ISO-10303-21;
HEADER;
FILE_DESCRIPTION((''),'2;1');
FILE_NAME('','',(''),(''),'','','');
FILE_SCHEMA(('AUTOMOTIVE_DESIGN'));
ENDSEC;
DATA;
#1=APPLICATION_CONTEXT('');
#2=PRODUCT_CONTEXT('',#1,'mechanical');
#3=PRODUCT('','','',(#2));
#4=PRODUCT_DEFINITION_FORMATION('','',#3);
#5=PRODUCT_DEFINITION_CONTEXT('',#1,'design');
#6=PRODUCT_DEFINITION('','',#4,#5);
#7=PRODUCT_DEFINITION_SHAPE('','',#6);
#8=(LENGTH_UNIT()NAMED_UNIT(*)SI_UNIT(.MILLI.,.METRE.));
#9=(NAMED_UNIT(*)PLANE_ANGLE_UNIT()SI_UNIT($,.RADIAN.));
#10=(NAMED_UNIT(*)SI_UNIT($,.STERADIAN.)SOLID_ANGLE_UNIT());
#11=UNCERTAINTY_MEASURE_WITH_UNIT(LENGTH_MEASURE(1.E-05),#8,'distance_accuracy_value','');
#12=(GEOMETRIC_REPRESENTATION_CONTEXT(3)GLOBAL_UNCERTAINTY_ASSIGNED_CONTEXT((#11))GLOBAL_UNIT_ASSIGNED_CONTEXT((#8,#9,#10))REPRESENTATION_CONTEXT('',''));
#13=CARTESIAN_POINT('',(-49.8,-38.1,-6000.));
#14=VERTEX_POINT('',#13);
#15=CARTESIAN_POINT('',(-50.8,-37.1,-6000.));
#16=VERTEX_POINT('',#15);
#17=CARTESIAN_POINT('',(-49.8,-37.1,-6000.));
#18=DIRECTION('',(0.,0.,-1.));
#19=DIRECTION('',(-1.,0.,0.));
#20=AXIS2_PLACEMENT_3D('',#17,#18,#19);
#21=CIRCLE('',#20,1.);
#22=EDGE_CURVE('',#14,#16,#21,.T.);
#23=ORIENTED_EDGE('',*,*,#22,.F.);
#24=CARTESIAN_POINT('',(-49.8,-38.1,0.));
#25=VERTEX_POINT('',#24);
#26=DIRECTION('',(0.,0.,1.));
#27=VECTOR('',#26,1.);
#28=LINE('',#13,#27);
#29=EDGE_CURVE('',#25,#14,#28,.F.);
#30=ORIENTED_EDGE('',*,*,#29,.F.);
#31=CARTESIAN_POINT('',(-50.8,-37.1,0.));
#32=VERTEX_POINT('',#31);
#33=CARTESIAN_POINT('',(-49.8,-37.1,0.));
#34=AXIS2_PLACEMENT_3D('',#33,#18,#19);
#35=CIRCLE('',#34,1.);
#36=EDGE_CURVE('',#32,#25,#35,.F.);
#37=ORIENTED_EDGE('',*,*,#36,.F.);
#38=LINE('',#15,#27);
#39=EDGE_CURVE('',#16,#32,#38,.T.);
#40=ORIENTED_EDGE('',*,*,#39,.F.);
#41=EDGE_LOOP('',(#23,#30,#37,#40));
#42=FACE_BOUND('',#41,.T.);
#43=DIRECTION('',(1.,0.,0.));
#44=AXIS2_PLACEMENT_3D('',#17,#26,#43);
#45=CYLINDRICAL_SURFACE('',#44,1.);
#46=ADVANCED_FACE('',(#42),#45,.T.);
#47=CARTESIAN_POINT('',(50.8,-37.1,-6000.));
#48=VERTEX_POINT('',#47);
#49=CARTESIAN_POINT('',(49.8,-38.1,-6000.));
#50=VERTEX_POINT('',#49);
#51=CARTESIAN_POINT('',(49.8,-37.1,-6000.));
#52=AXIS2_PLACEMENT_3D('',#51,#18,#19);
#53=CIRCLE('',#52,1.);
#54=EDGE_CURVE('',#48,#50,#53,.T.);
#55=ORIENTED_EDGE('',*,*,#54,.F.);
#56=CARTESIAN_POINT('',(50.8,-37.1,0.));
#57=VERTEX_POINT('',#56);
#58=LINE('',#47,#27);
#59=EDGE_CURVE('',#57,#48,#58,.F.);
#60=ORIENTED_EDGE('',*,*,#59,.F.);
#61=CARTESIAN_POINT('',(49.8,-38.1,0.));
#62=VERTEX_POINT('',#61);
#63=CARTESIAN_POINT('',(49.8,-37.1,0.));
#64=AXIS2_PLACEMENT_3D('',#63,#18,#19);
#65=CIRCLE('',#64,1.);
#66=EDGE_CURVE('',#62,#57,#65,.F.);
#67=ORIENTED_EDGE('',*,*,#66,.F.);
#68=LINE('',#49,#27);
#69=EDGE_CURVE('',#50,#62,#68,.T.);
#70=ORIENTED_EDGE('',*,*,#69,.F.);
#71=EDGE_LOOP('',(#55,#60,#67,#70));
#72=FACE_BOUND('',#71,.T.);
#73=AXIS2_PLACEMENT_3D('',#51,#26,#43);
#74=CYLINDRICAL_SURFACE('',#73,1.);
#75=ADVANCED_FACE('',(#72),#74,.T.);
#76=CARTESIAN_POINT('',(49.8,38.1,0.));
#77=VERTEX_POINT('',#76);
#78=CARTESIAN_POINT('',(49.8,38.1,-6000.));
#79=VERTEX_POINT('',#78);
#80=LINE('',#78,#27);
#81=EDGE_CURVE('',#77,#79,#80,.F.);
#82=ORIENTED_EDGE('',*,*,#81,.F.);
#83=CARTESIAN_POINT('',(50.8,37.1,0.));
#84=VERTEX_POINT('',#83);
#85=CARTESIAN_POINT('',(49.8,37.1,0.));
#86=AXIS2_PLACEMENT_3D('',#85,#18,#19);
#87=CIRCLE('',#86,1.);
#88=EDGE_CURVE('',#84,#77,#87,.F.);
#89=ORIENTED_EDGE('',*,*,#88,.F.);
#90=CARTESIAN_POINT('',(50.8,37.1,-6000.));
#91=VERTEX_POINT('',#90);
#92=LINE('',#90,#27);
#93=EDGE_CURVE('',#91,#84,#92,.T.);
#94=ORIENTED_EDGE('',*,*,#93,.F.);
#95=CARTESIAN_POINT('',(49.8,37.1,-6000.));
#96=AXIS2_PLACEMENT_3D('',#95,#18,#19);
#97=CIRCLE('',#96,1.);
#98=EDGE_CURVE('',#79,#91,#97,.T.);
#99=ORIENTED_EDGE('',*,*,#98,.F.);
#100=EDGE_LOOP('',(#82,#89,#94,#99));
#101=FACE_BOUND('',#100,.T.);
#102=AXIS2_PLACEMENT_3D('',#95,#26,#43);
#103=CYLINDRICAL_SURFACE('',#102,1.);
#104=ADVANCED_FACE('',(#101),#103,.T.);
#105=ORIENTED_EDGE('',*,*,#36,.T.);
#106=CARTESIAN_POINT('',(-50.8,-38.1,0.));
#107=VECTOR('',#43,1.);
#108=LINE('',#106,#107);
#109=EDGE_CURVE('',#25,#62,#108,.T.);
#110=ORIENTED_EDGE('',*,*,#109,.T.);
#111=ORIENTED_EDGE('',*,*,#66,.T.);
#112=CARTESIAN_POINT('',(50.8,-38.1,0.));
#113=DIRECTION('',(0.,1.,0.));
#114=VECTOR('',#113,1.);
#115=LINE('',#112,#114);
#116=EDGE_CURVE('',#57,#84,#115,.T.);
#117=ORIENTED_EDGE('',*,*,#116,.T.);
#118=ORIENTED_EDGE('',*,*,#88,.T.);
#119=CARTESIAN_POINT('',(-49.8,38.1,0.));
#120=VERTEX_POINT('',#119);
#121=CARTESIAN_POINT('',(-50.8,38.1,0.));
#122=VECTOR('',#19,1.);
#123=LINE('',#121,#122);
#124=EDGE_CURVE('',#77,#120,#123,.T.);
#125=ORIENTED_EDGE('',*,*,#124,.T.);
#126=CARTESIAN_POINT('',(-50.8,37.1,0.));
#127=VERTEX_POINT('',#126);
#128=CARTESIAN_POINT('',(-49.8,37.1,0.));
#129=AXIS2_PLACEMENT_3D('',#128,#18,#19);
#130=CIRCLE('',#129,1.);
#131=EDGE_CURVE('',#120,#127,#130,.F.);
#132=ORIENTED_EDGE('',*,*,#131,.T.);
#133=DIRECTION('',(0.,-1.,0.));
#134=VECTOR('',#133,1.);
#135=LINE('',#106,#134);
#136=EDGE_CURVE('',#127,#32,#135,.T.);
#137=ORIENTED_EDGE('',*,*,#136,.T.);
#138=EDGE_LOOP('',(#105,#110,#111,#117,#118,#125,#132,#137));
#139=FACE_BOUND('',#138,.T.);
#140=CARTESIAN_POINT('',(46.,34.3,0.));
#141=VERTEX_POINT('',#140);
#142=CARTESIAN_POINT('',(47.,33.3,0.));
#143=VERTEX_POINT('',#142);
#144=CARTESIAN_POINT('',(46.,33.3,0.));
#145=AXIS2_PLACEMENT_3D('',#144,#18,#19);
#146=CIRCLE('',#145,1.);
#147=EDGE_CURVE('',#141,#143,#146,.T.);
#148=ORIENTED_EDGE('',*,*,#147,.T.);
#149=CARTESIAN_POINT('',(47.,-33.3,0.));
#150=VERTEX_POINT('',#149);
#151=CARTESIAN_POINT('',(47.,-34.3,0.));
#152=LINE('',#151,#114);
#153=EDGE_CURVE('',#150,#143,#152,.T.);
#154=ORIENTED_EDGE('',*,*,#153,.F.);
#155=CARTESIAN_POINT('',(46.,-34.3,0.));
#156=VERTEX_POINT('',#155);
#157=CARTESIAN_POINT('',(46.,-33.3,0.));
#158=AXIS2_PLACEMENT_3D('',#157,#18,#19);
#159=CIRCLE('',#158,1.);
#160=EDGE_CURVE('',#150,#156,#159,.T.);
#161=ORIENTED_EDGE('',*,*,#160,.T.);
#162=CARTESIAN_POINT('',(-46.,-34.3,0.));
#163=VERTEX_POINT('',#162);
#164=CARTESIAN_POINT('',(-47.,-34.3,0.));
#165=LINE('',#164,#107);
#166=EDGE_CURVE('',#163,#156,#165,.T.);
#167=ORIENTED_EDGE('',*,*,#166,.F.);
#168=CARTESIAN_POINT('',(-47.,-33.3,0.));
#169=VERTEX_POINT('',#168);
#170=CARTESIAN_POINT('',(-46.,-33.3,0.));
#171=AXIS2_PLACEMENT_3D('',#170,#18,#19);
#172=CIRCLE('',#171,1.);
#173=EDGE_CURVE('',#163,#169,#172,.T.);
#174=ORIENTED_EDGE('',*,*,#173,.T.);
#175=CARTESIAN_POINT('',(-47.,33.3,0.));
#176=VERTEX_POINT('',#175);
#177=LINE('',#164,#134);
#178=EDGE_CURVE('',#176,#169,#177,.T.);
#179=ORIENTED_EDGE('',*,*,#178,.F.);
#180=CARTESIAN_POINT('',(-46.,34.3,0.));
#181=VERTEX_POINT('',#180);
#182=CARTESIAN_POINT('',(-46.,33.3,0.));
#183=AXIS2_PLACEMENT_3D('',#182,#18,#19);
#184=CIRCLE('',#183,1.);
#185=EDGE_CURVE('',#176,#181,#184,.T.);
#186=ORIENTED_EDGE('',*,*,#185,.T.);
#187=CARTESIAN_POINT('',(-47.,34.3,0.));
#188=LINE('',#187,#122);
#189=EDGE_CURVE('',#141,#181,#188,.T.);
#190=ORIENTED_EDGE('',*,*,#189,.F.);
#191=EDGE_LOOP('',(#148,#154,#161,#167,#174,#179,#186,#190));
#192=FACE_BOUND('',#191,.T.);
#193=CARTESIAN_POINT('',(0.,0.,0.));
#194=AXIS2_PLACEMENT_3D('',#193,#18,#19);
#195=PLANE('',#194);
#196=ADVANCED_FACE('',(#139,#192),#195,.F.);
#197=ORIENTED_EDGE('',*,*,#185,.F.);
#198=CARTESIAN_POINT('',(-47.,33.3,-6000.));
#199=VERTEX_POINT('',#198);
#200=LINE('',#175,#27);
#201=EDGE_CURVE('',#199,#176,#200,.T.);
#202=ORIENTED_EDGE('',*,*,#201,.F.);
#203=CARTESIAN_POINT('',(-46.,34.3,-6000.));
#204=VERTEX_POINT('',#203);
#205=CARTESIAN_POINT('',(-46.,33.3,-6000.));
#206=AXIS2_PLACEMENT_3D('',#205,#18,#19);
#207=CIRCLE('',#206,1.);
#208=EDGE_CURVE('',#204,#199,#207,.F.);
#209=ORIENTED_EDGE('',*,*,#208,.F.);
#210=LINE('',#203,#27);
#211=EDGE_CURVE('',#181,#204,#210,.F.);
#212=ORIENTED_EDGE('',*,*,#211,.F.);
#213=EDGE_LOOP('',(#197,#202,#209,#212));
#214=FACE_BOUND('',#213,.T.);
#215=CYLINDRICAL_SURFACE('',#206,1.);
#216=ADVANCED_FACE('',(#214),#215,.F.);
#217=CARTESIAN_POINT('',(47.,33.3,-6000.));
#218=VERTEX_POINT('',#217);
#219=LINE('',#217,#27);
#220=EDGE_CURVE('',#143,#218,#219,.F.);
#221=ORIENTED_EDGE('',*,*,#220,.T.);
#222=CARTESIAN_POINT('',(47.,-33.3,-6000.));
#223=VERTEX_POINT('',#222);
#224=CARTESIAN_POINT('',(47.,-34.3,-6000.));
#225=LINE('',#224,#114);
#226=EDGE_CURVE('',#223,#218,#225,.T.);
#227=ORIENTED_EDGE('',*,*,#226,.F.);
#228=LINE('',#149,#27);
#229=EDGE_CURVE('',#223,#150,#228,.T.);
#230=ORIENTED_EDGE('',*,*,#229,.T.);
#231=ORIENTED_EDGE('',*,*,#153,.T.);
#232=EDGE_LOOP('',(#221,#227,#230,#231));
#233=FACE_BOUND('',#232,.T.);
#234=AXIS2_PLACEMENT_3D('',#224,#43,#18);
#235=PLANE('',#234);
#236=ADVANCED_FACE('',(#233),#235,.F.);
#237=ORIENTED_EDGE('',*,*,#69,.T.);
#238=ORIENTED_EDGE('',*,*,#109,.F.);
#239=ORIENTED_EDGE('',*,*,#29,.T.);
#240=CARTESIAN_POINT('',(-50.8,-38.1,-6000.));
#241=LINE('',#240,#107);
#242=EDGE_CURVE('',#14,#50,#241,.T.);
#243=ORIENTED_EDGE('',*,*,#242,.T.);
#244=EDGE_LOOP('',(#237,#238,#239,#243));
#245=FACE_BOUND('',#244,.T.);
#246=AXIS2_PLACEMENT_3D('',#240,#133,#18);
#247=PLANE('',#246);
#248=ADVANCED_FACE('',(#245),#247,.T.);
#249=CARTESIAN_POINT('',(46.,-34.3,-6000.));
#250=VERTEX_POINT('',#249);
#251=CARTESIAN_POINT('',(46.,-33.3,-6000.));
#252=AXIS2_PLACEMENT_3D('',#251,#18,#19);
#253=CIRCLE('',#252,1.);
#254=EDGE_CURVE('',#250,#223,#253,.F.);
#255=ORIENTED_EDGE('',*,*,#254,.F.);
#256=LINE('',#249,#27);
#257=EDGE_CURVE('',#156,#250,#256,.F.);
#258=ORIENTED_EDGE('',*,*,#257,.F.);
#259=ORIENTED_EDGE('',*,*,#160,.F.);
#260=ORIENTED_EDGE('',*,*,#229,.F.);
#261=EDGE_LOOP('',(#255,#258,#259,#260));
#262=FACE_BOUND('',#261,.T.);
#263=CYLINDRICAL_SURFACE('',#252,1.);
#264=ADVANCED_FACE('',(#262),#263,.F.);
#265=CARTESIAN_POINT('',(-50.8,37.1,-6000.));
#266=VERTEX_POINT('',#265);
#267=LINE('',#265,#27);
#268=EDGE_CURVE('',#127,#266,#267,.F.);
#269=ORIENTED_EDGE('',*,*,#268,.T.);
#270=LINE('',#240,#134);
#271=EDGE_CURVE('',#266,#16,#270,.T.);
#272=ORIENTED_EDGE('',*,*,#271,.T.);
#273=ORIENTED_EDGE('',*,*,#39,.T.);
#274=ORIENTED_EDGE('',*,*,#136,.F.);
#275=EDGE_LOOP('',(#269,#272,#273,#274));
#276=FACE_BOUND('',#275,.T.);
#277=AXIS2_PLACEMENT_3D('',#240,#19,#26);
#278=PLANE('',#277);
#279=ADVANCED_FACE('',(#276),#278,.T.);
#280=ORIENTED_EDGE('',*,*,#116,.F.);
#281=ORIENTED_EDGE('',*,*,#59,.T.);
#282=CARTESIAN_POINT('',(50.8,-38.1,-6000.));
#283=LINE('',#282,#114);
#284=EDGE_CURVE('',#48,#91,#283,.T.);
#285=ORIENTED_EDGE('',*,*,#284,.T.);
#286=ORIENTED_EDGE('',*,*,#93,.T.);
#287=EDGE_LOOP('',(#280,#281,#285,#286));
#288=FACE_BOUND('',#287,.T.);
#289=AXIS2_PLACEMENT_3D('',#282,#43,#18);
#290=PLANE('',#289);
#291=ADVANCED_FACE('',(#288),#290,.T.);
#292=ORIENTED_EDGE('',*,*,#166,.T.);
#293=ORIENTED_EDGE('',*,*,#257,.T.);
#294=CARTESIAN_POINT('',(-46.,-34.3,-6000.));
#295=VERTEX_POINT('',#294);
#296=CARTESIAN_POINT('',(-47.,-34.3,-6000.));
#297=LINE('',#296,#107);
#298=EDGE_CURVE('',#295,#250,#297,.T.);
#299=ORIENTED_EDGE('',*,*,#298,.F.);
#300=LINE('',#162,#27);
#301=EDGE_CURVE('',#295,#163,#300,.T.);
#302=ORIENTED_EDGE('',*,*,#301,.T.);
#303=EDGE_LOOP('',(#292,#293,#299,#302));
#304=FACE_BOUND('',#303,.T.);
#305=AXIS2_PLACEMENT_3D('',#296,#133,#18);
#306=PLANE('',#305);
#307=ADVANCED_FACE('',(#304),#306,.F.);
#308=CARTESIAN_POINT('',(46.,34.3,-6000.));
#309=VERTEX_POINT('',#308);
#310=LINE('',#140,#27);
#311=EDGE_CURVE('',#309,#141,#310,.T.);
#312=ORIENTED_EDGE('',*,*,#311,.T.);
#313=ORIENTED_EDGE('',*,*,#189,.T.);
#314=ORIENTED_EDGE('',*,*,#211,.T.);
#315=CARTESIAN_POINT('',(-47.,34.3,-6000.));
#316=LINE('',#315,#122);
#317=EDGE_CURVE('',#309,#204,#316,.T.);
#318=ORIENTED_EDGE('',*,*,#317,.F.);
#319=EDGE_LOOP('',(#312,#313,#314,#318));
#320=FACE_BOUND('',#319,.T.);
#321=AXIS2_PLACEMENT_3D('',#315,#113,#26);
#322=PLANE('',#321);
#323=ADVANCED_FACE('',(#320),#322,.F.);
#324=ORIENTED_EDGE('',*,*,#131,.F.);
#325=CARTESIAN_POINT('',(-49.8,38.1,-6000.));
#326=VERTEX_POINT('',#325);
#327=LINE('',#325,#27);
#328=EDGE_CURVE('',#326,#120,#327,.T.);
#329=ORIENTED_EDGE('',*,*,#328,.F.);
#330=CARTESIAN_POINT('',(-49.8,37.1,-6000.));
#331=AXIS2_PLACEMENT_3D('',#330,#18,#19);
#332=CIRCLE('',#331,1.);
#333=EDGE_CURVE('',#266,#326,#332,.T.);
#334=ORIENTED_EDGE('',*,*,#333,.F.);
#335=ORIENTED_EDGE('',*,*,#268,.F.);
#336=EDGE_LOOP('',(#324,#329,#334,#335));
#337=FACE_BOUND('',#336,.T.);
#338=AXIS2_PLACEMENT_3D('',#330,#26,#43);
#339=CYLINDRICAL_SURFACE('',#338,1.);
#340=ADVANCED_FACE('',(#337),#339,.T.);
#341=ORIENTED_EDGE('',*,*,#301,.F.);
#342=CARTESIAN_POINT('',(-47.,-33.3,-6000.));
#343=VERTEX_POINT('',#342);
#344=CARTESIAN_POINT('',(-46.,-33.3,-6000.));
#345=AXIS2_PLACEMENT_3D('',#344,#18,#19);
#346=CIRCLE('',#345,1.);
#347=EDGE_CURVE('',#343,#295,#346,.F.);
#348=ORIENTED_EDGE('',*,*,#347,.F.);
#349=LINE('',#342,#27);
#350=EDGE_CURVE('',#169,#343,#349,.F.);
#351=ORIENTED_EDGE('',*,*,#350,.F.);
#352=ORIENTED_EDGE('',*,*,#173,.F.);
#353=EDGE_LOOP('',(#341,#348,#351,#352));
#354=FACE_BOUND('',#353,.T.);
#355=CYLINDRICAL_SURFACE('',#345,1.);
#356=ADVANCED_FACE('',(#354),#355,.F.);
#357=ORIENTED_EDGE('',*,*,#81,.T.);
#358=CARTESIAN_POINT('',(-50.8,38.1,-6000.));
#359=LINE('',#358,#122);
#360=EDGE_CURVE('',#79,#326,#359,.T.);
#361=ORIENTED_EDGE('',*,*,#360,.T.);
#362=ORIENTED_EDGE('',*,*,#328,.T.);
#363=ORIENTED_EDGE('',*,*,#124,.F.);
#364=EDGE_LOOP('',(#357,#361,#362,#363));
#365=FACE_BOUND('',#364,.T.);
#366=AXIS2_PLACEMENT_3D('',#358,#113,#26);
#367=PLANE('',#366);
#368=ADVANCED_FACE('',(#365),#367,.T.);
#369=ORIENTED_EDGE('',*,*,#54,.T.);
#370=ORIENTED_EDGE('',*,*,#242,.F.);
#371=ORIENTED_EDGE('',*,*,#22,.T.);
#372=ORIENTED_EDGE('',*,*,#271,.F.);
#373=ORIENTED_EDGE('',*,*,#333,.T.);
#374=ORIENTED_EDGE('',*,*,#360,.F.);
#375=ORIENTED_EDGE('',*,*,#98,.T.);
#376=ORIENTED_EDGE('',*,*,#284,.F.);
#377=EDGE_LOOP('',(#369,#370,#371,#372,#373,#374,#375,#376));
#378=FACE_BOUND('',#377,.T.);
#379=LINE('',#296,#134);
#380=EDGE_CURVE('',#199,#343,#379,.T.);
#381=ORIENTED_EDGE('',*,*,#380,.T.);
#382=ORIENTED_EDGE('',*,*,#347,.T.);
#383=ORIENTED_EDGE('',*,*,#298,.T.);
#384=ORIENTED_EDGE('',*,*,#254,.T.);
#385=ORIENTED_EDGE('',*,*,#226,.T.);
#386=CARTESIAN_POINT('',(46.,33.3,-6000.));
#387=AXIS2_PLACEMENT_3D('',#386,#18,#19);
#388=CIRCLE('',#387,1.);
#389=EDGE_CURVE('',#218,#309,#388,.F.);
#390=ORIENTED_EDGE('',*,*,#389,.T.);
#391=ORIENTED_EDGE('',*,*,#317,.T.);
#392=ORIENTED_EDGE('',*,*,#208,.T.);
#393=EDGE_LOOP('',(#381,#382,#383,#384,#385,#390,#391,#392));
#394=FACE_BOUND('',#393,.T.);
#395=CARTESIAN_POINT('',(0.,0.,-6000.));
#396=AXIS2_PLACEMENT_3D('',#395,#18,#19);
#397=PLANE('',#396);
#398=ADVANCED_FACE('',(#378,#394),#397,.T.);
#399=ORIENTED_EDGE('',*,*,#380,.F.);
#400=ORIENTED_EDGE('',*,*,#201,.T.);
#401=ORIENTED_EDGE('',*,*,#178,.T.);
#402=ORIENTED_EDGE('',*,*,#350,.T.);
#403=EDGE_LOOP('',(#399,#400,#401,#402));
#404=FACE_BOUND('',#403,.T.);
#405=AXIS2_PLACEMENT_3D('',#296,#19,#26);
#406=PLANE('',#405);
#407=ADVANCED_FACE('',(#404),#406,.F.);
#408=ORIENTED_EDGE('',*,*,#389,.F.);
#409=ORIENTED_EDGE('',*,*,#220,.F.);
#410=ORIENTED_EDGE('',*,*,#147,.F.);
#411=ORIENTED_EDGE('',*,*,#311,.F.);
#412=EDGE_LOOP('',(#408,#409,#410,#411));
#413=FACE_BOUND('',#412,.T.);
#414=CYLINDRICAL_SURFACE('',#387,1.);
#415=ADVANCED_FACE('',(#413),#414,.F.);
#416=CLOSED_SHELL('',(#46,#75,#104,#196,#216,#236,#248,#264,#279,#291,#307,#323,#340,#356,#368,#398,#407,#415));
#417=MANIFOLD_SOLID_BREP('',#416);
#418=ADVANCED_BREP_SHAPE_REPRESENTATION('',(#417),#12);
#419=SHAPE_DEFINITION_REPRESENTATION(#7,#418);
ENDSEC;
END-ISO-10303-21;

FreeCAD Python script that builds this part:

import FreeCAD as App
import Part
import Sketcher
Q = App.Units.Quantity


def edges_at(feature, points):
    """Names of the edges that pass closest to the given points."""
    edges = feature.Shape.Edges
    near = lambda p: min(range(len(edges)), key=lambda i: edges[i].distToShape(Part.Vertex(*p))[0])
    return sorted({f"Edge{near(p) + 1}" for p in points})


def add_polygon(sketch, points):
    """Adds a closed chain of lines whose ends are joined by coincident constraints."""
    first, n = sketch.GeometryCount, len(points)
    for a, b in zip(points, points[1:] + points[:1]):
        sketch.addGeometry(Part.LineSegment(App.Vector(*a, 0), App.Vector(*b, 0)), False)
    for i in range(n):
        sketch.addConstraint(Sketcher.Constraint("Coincident", first + i, 2, first + (i + 1) % n, 1))

doc = App.newDocument("Part")
body = doc.addObject("PartDesign::Body", "Body")

# Sketch on XY plane
sketch1 = body.newObject("Sketcher::SketchObject", "Sketch")
sketch1.AttachmentSupport = (doc.getObject("XY_Plane"), [""])
sketch1.MapMode = "FlatFace"
add_polygon(sketch1, [(-51, 38), (-51, -38), (51, -38), (51, 38)])  # lines 0-3
add_polygon(sketch1, [(47, -34), (-47, -34), (-47, 34), (47, 34)])  # lines 4-7
sketch1.addConstraint(Sketcher.Constraint("Vertical", 0))
sketch1.addConstraint(Sketcher.Constraint("Horizontal", 1))
sketch1.addConstraint(Sketcher.Constraint("Vertical", 2))
sketch1.addConstraint(Sketcher.Constraint("Horizontal", 3))
sketch1.addConstraint(Sketcher.Constraint("Horizontal", 4))
sketch1.addConstraint(Sketcher.Constraint("Vertical", 5))
sketch1.addConstraint(Sketcher.Constraint("Horizontal", 6))
sketch1.addConstraint(Sketcher.Constraint("Vertical", 7))
sketch1.addConstraint(Sketcher.Constraint("Symmetric", 0, 2, 2, 2, -1, 1))
sketch1.addConstraint(Sketcher.Constraint("Symmetric", 4, 2, 6, 2, -1, 1))
sketch1.addConstraint(Sketcher.Constraint("DistanceX", 4, 2, 4, 1, Q("94 mm")))
sketch1.addConstraint(Sketcher.Constraint("DistanceX", 1, 1, 1, 2, Q("101.6 mm")))
sketch1.addConstraint(Sketcher.Constraint("DistanceY", 0, 2, 0, 1, Q("76.2 mm")))
sketch1.addConstraint(Sketcher.Constraint("DistanceY", 5, 1, 5, 2, Q("68.6 mm")))
pad1 = body.newObject("PartDesign::Pad", "Pad")
pad1.Profile = sketch1
pad1.Length = 6000
pad1.Reversed = True
doc.recompute()

fillet = body.newObject("PartDesign::Fillet", "Fillet")
fillet.Base = (pad1, edges_at(pad1, [
    (47, -34.3, -3000),
    (-47, -34.3, -3000),
    (-47, 34.3, -3000),
    (47, 34.3, -3000),
    (50.8, -38.1, -3000),
    (-50.8, -38.1, -3000),
    (-50.8, 38.1, -3000),
    (50.8, 38.1, -3000),
]))
fillet.Radius = 1

doc.recompute()
